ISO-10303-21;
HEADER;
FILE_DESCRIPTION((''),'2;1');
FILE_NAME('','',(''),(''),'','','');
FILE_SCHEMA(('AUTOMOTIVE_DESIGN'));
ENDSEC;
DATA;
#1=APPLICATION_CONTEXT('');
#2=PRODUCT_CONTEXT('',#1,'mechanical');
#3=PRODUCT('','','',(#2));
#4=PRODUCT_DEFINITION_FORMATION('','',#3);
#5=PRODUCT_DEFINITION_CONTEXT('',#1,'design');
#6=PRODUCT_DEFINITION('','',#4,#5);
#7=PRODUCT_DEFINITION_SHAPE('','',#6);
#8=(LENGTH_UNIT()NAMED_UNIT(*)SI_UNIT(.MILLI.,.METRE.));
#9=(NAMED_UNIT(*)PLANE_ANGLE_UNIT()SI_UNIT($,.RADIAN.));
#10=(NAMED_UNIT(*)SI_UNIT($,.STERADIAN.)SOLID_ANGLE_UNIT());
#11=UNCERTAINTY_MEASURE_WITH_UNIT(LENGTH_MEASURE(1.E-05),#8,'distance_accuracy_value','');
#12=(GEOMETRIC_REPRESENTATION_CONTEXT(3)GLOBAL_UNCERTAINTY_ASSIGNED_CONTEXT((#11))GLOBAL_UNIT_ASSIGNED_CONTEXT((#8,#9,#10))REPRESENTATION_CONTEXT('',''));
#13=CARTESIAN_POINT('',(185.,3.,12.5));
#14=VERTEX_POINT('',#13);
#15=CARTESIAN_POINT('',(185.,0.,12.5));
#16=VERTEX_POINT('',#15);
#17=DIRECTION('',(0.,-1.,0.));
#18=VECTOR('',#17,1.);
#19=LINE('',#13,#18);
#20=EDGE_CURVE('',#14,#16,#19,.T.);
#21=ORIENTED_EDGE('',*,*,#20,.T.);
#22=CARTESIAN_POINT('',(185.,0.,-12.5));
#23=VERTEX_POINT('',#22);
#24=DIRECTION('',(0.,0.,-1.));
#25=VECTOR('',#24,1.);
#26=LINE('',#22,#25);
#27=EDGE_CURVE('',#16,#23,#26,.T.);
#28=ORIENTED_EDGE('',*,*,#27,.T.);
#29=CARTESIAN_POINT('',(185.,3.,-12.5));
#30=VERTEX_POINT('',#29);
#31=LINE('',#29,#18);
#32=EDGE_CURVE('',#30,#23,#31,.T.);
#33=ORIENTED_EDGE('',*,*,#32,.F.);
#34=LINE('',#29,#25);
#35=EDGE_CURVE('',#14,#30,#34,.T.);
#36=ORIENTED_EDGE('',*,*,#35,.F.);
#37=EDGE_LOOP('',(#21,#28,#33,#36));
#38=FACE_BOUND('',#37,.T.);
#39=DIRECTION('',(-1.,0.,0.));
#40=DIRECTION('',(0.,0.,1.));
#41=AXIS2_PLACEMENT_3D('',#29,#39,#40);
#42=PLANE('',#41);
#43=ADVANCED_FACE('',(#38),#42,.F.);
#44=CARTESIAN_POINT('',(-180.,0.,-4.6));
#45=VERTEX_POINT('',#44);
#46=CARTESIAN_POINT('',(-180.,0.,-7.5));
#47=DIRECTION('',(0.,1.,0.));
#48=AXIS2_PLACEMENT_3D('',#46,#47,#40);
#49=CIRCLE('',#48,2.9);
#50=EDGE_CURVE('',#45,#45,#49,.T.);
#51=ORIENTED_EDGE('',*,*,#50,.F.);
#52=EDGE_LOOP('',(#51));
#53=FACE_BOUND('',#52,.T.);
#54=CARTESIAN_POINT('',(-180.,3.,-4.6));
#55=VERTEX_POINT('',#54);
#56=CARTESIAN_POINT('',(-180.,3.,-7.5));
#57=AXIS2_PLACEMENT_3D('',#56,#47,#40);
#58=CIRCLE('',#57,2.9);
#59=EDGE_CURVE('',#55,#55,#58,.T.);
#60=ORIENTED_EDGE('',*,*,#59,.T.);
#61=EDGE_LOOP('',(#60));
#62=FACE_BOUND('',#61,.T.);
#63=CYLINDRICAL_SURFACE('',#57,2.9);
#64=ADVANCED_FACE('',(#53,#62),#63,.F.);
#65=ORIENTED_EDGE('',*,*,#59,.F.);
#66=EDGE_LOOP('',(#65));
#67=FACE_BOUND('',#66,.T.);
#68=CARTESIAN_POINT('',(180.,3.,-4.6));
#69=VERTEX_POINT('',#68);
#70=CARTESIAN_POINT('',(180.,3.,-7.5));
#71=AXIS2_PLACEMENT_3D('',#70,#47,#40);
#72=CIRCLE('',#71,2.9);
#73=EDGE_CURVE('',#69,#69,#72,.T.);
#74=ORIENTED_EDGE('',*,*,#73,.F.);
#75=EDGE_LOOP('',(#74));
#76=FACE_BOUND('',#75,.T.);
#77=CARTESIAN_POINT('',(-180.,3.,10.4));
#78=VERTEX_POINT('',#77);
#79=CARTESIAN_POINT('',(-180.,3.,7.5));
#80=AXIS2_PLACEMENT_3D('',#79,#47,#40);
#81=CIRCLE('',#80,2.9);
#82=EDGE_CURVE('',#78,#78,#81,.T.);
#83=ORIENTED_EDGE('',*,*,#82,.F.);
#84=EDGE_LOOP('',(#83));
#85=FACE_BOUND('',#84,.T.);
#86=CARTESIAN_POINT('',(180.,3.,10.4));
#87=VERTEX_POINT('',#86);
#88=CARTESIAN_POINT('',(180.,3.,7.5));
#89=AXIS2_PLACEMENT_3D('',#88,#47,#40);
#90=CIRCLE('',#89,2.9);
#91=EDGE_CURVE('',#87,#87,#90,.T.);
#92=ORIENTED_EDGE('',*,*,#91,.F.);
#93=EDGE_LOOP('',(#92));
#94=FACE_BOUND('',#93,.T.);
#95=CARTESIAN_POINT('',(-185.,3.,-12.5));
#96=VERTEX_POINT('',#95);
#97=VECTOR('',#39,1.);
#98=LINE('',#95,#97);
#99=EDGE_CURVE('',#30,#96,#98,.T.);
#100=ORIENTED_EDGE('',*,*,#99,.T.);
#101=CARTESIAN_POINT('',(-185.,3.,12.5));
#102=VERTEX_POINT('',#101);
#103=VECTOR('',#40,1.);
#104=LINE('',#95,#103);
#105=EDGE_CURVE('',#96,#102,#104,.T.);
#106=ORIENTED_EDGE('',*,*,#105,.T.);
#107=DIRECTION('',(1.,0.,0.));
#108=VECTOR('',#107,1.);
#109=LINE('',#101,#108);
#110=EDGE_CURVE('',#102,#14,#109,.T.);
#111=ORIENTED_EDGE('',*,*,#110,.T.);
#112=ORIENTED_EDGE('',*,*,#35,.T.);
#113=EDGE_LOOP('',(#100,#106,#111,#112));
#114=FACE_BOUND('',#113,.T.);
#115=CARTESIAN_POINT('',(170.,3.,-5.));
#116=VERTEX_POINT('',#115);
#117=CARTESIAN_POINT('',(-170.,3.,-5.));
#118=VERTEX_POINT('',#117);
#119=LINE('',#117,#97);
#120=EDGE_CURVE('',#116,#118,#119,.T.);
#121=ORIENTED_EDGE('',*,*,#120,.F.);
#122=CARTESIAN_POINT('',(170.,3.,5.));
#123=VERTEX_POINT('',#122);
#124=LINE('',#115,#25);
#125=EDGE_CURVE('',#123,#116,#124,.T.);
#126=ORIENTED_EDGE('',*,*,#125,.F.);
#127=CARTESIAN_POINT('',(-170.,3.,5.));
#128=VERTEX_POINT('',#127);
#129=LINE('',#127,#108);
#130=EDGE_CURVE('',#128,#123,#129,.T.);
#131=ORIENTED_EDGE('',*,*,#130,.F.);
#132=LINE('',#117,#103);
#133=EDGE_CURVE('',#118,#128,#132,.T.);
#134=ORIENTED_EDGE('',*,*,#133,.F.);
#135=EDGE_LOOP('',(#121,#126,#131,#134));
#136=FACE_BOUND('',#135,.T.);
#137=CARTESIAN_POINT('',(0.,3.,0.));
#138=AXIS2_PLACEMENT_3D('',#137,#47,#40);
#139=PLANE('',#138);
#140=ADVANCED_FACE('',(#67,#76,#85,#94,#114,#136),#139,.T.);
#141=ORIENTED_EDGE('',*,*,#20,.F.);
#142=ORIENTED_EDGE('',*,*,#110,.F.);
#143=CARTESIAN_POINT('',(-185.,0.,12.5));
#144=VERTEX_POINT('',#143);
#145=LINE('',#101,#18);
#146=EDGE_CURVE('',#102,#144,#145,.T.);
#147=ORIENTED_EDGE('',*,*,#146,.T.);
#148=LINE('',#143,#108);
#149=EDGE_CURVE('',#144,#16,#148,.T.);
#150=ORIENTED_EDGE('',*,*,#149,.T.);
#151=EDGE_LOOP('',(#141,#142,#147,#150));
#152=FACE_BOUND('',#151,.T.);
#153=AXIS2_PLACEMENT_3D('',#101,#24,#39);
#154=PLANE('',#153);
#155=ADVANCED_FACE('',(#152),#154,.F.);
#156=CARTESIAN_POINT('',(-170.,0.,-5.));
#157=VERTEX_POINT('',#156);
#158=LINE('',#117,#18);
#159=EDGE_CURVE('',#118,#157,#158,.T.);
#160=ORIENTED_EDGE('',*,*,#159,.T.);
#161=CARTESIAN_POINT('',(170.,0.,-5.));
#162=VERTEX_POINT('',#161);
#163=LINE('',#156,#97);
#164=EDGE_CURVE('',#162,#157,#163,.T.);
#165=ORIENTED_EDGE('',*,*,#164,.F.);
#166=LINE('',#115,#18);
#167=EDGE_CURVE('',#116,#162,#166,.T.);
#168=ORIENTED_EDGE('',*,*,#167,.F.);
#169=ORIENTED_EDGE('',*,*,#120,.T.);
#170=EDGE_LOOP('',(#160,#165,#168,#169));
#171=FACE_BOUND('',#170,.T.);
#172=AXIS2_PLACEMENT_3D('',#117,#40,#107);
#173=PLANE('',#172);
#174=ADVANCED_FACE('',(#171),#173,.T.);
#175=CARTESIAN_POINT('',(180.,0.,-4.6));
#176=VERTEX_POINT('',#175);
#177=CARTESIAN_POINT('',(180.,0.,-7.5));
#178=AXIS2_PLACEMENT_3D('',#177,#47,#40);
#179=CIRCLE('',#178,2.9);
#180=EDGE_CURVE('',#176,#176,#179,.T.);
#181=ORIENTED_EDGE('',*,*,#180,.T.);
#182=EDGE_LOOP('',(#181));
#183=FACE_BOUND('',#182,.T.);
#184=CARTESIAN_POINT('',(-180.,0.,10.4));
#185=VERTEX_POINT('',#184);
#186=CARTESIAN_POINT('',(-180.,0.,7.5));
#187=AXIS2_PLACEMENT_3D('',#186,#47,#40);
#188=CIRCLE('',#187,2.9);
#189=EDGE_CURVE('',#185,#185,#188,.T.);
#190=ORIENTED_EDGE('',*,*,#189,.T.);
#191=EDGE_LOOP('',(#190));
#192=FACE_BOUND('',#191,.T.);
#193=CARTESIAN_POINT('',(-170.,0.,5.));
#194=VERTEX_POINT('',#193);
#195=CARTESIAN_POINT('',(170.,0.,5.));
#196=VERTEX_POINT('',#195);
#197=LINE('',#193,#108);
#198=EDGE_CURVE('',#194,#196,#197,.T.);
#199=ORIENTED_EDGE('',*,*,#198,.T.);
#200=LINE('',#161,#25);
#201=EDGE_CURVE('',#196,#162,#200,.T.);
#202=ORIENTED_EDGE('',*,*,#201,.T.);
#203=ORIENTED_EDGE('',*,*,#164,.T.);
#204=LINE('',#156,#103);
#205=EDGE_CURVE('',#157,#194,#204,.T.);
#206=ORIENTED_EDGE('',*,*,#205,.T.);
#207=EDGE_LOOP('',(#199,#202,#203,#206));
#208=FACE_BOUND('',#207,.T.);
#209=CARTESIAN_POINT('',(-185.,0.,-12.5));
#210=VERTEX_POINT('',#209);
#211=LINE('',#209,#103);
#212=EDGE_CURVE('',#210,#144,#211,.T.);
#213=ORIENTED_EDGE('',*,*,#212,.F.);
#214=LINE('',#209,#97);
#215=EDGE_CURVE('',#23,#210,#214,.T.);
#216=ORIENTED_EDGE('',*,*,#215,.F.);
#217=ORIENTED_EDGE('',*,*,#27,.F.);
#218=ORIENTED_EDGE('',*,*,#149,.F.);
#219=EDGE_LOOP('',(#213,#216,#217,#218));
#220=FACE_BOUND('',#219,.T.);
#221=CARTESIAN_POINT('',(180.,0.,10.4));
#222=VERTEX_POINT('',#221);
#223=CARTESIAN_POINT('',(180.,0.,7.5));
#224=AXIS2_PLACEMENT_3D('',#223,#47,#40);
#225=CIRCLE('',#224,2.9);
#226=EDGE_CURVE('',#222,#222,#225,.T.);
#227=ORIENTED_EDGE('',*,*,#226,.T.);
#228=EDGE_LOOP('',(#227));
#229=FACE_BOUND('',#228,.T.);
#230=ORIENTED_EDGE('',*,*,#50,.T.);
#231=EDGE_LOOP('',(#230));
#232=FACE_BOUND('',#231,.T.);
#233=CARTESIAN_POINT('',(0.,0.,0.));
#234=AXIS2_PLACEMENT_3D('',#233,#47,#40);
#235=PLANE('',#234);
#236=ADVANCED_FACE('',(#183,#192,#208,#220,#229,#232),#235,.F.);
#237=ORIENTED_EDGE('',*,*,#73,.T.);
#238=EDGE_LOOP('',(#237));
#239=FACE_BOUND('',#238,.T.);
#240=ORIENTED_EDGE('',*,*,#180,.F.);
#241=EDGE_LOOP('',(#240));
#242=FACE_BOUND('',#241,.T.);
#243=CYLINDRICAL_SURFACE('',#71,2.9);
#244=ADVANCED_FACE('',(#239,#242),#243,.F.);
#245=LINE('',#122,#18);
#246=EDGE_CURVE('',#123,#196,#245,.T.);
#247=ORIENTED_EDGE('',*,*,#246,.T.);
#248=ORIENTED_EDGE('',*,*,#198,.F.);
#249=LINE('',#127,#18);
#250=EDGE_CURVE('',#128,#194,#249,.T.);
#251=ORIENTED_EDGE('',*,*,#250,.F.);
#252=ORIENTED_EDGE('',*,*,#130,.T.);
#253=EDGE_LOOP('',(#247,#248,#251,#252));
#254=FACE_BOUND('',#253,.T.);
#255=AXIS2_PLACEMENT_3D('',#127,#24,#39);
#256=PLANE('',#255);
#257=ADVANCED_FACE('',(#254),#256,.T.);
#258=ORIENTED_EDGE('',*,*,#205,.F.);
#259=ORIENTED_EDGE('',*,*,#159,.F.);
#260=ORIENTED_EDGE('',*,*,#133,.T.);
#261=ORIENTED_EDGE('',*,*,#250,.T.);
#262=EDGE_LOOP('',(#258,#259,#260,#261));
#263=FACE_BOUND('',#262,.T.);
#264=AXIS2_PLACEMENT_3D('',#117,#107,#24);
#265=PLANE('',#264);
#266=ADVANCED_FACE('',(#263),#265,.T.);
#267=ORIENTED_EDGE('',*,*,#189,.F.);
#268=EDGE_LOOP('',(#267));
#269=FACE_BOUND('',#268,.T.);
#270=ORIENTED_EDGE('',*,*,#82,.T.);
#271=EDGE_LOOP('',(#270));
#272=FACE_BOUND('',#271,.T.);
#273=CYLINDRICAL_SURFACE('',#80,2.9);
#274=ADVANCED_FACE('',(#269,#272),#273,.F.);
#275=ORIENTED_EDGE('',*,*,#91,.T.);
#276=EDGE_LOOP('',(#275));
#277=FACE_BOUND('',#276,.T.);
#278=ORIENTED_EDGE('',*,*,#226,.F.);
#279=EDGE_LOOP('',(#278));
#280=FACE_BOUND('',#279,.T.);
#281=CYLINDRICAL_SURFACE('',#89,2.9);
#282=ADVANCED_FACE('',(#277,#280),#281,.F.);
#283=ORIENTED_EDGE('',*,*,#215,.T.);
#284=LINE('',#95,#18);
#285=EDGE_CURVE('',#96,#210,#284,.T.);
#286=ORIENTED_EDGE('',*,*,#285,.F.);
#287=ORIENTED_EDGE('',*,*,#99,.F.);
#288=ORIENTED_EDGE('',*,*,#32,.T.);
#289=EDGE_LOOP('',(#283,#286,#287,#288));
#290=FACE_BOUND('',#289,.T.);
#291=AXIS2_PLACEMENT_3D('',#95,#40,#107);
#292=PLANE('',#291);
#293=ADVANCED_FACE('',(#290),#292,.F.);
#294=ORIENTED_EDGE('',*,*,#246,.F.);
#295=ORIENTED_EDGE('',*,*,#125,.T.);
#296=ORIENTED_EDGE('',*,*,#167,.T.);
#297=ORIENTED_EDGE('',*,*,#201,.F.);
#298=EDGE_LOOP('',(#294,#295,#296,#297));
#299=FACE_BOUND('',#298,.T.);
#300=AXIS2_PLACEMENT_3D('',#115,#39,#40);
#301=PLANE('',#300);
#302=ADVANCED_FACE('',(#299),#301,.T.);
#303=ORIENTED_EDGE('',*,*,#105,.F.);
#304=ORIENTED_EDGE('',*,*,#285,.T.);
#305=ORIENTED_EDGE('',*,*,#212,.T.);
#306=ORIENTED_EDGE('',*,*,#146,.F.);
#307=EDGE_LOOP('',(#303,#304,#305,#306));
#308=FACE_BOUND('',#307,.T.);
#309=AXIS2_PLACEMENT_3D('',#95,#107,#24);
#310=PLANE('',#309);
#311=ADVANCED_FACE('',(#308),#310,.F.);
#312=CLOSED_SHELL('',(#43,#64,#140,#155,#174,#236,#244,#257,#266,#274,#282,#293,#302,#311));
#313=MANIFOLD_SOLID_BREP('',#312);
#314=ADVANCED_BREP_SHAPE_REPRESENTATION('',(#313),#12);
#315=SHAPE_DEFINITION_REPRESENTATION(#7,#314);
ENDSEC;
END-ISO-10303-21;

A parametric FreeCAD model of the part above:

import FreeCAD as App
import Part
import Sketcher

doc = App.newDocument("Part")
body = doc.addObject("PartDesign::Body", "Body")

# Sketch on XZ plane
sketch1 = body.newObject("Sketcher::SketchObject", "Sketch")
sketch1.AttachmentSupport = (doc.getObject("XZ_Plane"), [""])
sketch1.MapMode = "FlatFace"
sketch1.addGeometry([
    Part.LineSegment(App.Vector(-185, -12, 0), App.Vector(-185, 12, 0)),  # 0
    Part.LineSegment(App.Vector(-185, 12, 0), App.Vector(185, 12, 0)),  # 1
    Part.LineSegment(App.Vector(185, 12, 0), App.Vector(185, -12, 0)),  # 2
    Part.LineSegment(App.Vector(185, -12, 0), App.Vector(-185, -12, 0)),  # 3
    Part.LineSegment(App.Vector(170, 5, 0), App.Vector(-170, 5, 0)),  # 4
    Part.LineSegment(App.Vector(-170, 5, 0), App.Vector(-170, -5, 0)),  # 5
    Part.LineSegment(App.Vector(-170, -5, 0), App.Vector(170, -5, 0)),  # 6
    Part.LineSegment(App.Vector(170, -5, 0), App.Vector(170, 5, 0)),  # 7
], False)
sketch1.addConstraint([
    Sketcher.Constraint("Coincident", 0, 2, 1, 1),
    Sketcher.Constraint("Coincident", 1, 2, 2, 1),
    Sketcher.Constraint("Coincident", 2, 2, 3, 1),
    Sketcher.Constraint("Coincident", 3, 2, 0, 1),
    Sketcher.Constraint("Coincident", 4, 2, 5, 1),
    Sketcher.Constraint("Coincident", 5, 2, 6, 1),
    Sketcher.Constraint("Coincident", 6, 2, 7, 1),
    Sketcher.Constraint("Coincident", 7, 2, 4, 1),
    Sketcher.Constraint("Vertical", 0),
    Sketcher.Constraint("Horizontal", 1),
    Sketcher.Constraint("Vertical", 2),
    Sketcher.Constraint("Horizontal", 3),
    Sketcher.Constraint("Horizontal", 4),
    Sketcher.Constraint("Vertical", 5),
    Sketcher.Constraint("Horizontal", 6),
    Sketcher.Constraint("Vertical", 7),
    Sketcher.Constraint("Symmetric", 0, 2, 2, 2, -1, 1),
    Sketcher.Constraint("Symmetric", 4, 2, 6, 2, -1, 1),
    Sketcher.Constraint("DistanceX", 1, 1, 1, 2, 370.0),
    Sketcher.Constraint("DistanceX", 4, 2, 4, 1, 340.0),
    Sketcher.Constraint("DistanceY", 0, 1, 0, 2, 25.0),
    Sketcher.Constraint("DistanceY", 5, 2, 5, 1, 10.0),
])
pad1 = body.newObject("PartDesign::Pad", "Pad")
pad1.Profile = sketch1
pad1.Length = 3
pad1.Reversed = True

# Sketch on XZ plane
sketch2 = body.newObject("Sketcher::SketchObject", "Sketch001")
sketch2.AttachmentSupport = (doc.getObject("XZ_Plane"), [""])
sketch2.MapMode = "FlatFace"
sketch2.AttachmentOffset = App.Placement(App.Vector(0, 0, -3), App.Rotation())
sketch2.addGeometry([
    Part.Circle(App.Vector(-180, -7.5, 0), App.Vector(0, 0, 1), 2.9),
    Part.Circle(App.Vector(-180, 7.5, 0), App.Vector(0, 0, 1), 2.9),
    Part.Circle(App.Vector(180, 7.5, 0), App.Vector(0, 0, 1), 2.9),
    Part.Circle(App.Vector(180, -7.5, 0), App.Vector(0, 0, 1), 2.9),
], False)
sketch2.addConstraint([
    Sketcher.Constraint("Equal", 0, 1),
    Sketcher.Constraint("Equal", 1, 2),
    Sketcher.Constraint("Equal", 2, 3),
    Sketcher.Constraint("Symmetric", 0, 3, 2, 3, -1, 1),
    Sketcher.Constraint("Symmetric", 1, 3, 3, 3, -1, 1),
    Sketcher.Constraint("Symmetric", 1, 3, 2, 3, -2),
    Sketcher.Constraint("Diameter", 0, 5.8),
    Sketcher.Constraint("DistanceX", 0, 3, -1, 1, 180.0),
    Sketcher.Constraint("DistanceY", 0, 3, 1, 3, 15.0),
])
doc.recompute()
hole = body.newObject("PartDesign::Hole", "Hole")
hole.Profile = sketch2
hole.ThreadType = "None"
hole.Diameter = 5.8
hole.DepthType = "Dimension"
hole.Depth = 4
hole.DrillPoint = "Flat"
hole.Reversed = True

doc.recompute()
